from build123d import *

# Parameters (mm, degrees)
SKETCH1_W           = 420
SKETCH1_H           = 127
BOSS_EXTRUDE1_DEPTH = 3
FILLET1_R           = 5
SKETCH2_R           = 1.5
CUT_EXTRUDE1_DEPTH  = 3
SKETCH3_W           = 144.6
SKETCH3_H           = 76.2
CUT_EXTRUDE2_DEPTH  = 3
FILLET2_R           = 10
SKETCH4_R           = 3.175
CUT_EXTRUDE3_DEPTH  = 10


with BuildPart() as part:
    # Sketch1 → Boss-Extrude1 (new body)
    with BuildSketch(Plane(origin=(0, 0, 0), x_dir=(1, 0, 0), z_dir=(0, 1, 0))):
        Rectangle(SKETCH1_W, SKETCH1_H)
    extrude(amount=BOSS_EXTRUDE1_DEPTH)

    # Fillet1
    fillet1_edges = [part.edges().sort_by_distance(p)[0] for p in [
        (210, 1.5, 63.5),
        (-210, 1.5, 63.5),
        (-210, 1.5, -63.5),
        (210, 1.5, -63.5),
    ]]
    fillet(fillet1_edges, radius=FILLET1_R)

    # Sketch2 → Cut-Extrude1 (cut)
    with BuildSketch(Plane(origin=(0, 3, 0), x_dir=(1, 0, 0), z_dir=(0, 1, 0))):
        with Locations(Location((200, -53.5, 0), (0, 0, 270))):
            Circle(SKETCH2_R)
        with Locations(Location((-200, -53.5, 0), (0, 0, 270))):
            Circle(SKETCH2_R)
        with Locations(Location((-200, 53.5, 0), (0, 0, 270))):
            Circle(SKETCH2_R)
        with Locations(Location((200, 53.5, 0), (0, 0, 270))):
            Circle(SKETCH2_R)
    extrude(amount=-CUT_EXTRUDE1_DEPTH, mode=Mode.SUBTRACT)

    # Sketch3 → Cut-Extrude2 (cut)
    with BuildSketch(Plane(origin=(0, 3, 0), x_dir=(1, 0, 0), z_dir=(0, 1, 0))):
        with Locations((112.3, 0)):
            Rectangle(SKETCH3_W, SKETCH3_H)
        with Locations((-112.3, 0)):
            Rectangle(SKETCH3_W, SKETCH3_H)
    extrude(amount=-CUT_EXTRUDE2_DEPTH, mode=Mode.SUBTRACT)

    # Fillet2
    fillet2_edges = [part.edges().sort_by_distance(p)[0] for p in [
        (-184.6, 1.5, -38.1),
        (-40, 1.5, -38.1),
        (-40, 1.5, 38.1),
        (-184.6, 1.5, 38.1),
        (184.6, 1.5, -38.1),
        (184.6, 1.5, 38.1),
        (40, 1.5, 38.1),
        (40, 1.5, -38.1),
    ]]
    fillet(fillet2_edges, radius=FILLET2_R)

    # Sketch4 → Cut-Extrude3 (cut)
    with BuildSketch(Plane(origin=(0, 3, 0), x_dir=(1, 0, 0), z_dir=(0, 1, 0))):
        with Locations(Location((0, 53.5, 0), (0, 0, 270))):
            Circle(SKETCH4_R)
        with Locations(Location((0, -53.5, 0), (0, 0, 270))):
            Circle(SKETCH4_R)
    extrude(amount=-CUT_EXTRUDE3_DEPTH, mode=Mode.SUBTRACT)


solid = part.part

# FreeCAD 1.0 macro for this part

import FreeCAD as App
import Part
import Sketcher
from FreeCAD import Vector


def edges_at(feature, points):
    """Names of the edges that pass closest to the given points."""
    edges = feature.Shape.Edges
    near = lambda p: min(range(len(edges)), key=lambda i: edges[i].distToShape(Part.Vertex(*p))[0])
    return sorted({f"Edge{near(p) + 1}" for p in points})


def add_polygon(sketch, points):
    """Adds a closed chain of lines whose ends are joined by coincident constraints."""
    first, n = sketch.GeometryCount, len(points)
    for a, b in zip(points, points[1:] + points[:1]):
        sketch.addGeometry(Part.LineSegment(App.Vector(*a, 0), App.Vector(*b, 0)), False)
    for i in range(n):
        sketch.addConstraint(Sketcher.Constraint("Coincident", first + i, 2, first + (i + 1) % n, 1))

doc = App.newDocument("Part")
body = doc.addObject("PartDesign::Body", "Body")

# Sketch on XZ plane
sketch1 = body.newObject("Sketcher::SketchObject", "Sketch")
sketch1.AttachmentSupport = (doc.getObject("XZ_Plane"), [""])
sketch1.MapMode = "FlatFace"
add_polygon(sketch1, [(-210, -64), (-210, 64), (210, 64), (210, -64)])  # lines 0-3
sketch1.addConstraint(Sketcher.Constraint("Vertical", 0))
sketch1.addConstraint(Sketcher.Constraint("Horizontal", 1))
sketch1.addConstraint(Sketcher.Constraint("Vertical", 2))
sketch1.addConstraint(Sketcher.Constraint("Horizontal", 3))
sketch1.addConstraint(Sketcher.Constraint("Symmetric", 0, 2, 2, 2, -1, 1))
sketch1.addConstraint(Sketcher.Constraint("DistanceX", 1, 1, 1, 2, 420.0))
sketch1.addConstraint(Sketcher.Constraint("DistanceY", 0, 1, 0, 2, 127.0))
pad1 = body.newObject("PartDesign::Pad", "Pad")
pad1.Profile = sketch1
pad1.Length = 3
pad1.Reversed = True
doc.recompute()

fillet = body.newObject("PartDesign::Fillet", "Fillet")
fillet.Base = (pad1, edges_at(pad1, [
    (210, 1.5, 63.5),
    (-210, 1.5, 63.5),
    (-210, 1.5, -63.5),
    (210, 1.5, -63.5),
]))
fillet.Radius = 5

# Sketch on XZ plane
sketch2 = body.newObject("Sketcher::SketchObject", "Sketch001")
sketch2.AttachmentSupport = (doc.getObject("XZ_Plane"), [""])
sketch2.MapMode = "FlatFace"
sketch2.AttachmentOffset = App.Placement(Vector(0, 0, -3), App.Rotation())
sketch2.addGeometry(Part.Circle(Vector(200, 53.5, 0), Vector(0, 0, 1), 1.5), False)
sketch2.addGeometry(Part.Circle(Vector(-200, 53.5, 0), Vector(0, 0, 1), 1.5), False)
sketch2.addGeometry(Part.Circle(Vector(-200, -53.5, 0), Vector(0, 0, 1), 1.5), False)
sketch2.addGeometry(Part.Circle(Vector(200, -53.5, 0), Vector(0, 0, 1), 1.5), False)
sketch2.addConstraint(Sketcher.Constraint("Equal", 0, 1))
sketch2.addConstraint(Sketcher.Constraint("Equal", 1, 2))
sketch2.addConstraint(Sketcher.Constraint("Equal", 2, 3))
sketch2.addConstraint(Sketcher.Constraint("Symmetric", 0, 3, 2, 3, -1, 1))
sketch2.addConstraint(Sketcher.Constraint("Symmetric", 1, 3, 3, 3, -1, 1))
sketch2.addConstraint(Sketcher.Constraint("Symmetric", 0, 3, 1, 3, -2))
sketch2.addConstraint(Sketcher.Constraint("Diameter", 0, 3.0))
sketch2.addConstraint(Sketcher.Constraint("DistanceX", -1, 1, 0, 3, 200.0))
sketch2.addConstraint(Sketcher.Constraint("DistanceY", 2, 3, 1, 3, 107.0))
pocket1 = body.newObject("PartDesign::Pocket", "Pocket")
pocket1.Profile = sketch2
pocket1.Length = 3
pocket1.Reversed = True

# Sketch on XZ plane
sketch3 = body.newObject("Sketcher::SketchObject", "Sketch002")
sketch3.AttachmentSupport = (doc.getObject("XZ_Plane"), [""])
sketch3.MapMode = "FlatFace"
sketch3.AttachmentOffset = App.Placement(Vector(0, 0, -3), App.Rotation())
add_polygon(sketch3, [(40, -38), (40, 38), (185, 38), (185, -38)])  # lines 0-3
add_polygon(sketch3, [(-185, -38), (-185, 38), (-40, 38), (-40, -38)])  # lines 4-7
sketch3.addConstraint(Sketcher.Constraint("Vertical", 0))
sketch3.addConstraint(Sketcher.Constraint("Horizontal", 1))
sketch3.addConstraint(Sketcher.Constraint("Vertical", 2))
sketch3.addConstraint(Sketcher.Constraint("Horizontal", 3))
sketch3.addConstraint(Sketcher.Constraint("Vertical", 4))
sketch3.addConstraint(Sketcher.Constraint("Horizontal", 5))
sketch3.addConstraint(Sketcher.Constraint("Vertical", 6))
sketch3.addConstraint(Sketcher.Constraint("Horizontal", 7))
sketch3.addConstraint(Sketcher.Constraint("Symmetric", 2, 2, 4, 2, -1, 1))
sketch3.addConstraint(Sketcher.Constraint("Symmetric", 0, 2, 6, 2, -1, 1))
sketch3.addConstraint(Sketcher.Constraint("Horizontal", 1, 2, 4, 2))
sketch3.addConstraint(Sketcher.Constraint("DistanceX", 1, 1, 1, 2, 144.6))
sketch3.addConstraint(Sketcher.Constraint("DistanceY", 0, 1, 0, 2, 76.2))
sketch3.addConstraint(Sketcher.Constraint("DistanceX", -1, 1, 0, 2, 40.0))
pocket2 = body.newObject("PartDesign::Pocket", "Pocket001")
pocket2.Profile = sketch3
pocket2.Length = 3
pocket2.Reversed = True
doc.recompute()

fillet2 = body.newObject("PartDesign::Fillet", "Fillet001")
fillet2.Base = (pocket2, edges_at(pocket2, [
    (-184.6, 1.5, -38.1),
    (-40, 1.5, -38.1),
    (-40, 1.5, 38.1),
    (-184.6, 1.5, 38.1),
    (184.6, 1.5, -38.1),
    (184.6, 1.5, 38.1),
    (40, 1.5, 38.1),
    (40, 1.5, -38.1),
]))
fillet2.Radius = 10

# Sketch on XZ plane
sketch4 = body.newObject("Sketcher::SketchObject", "Sketch003")
sketch4.AttachmentSupport = (doc.getObject("XZ_Plane"), [""])
sketch4.MapMode = "FlatFace"
sketch4.AttachmentOffset = App.Placement(Vector(0, 0, -3), App.Rotation())
sketch4.addGeometry(Part.Circle(Vector(0, -53.5, 0), Vector(0, 0, 1), 3.2), False)
sketch4.addGeometry(Part.Circle(Vector(0, 53.5, 0), Vector(0, 0, 1), 3.2), False)
sketch4.addConstraint(Sketcher.Constraint("Equal", 0, 1))
sketch4.addConstraint(Sketcher.Constraint("Symmetric", 0, 3, 1, 3, -1, 1))
sketch4.addConstraint(Sketcher.Constraint("PointOnObject", 0, 3, -2))
sketch4.addConstraint(Sketcher.Constraint("Diameter", 0, 6.35))
sketch4.addConstraint(Sketcher.Constraint("DistanceY", 0, 3, 1, 3, 107.0))
pocket3 = body.newObject("PartDesign::Pocket", "Pocket002")
pocket3.Profile = sketch4
pocket3.Length = 10
pocket3.Reversed = True

doc.recompute()
